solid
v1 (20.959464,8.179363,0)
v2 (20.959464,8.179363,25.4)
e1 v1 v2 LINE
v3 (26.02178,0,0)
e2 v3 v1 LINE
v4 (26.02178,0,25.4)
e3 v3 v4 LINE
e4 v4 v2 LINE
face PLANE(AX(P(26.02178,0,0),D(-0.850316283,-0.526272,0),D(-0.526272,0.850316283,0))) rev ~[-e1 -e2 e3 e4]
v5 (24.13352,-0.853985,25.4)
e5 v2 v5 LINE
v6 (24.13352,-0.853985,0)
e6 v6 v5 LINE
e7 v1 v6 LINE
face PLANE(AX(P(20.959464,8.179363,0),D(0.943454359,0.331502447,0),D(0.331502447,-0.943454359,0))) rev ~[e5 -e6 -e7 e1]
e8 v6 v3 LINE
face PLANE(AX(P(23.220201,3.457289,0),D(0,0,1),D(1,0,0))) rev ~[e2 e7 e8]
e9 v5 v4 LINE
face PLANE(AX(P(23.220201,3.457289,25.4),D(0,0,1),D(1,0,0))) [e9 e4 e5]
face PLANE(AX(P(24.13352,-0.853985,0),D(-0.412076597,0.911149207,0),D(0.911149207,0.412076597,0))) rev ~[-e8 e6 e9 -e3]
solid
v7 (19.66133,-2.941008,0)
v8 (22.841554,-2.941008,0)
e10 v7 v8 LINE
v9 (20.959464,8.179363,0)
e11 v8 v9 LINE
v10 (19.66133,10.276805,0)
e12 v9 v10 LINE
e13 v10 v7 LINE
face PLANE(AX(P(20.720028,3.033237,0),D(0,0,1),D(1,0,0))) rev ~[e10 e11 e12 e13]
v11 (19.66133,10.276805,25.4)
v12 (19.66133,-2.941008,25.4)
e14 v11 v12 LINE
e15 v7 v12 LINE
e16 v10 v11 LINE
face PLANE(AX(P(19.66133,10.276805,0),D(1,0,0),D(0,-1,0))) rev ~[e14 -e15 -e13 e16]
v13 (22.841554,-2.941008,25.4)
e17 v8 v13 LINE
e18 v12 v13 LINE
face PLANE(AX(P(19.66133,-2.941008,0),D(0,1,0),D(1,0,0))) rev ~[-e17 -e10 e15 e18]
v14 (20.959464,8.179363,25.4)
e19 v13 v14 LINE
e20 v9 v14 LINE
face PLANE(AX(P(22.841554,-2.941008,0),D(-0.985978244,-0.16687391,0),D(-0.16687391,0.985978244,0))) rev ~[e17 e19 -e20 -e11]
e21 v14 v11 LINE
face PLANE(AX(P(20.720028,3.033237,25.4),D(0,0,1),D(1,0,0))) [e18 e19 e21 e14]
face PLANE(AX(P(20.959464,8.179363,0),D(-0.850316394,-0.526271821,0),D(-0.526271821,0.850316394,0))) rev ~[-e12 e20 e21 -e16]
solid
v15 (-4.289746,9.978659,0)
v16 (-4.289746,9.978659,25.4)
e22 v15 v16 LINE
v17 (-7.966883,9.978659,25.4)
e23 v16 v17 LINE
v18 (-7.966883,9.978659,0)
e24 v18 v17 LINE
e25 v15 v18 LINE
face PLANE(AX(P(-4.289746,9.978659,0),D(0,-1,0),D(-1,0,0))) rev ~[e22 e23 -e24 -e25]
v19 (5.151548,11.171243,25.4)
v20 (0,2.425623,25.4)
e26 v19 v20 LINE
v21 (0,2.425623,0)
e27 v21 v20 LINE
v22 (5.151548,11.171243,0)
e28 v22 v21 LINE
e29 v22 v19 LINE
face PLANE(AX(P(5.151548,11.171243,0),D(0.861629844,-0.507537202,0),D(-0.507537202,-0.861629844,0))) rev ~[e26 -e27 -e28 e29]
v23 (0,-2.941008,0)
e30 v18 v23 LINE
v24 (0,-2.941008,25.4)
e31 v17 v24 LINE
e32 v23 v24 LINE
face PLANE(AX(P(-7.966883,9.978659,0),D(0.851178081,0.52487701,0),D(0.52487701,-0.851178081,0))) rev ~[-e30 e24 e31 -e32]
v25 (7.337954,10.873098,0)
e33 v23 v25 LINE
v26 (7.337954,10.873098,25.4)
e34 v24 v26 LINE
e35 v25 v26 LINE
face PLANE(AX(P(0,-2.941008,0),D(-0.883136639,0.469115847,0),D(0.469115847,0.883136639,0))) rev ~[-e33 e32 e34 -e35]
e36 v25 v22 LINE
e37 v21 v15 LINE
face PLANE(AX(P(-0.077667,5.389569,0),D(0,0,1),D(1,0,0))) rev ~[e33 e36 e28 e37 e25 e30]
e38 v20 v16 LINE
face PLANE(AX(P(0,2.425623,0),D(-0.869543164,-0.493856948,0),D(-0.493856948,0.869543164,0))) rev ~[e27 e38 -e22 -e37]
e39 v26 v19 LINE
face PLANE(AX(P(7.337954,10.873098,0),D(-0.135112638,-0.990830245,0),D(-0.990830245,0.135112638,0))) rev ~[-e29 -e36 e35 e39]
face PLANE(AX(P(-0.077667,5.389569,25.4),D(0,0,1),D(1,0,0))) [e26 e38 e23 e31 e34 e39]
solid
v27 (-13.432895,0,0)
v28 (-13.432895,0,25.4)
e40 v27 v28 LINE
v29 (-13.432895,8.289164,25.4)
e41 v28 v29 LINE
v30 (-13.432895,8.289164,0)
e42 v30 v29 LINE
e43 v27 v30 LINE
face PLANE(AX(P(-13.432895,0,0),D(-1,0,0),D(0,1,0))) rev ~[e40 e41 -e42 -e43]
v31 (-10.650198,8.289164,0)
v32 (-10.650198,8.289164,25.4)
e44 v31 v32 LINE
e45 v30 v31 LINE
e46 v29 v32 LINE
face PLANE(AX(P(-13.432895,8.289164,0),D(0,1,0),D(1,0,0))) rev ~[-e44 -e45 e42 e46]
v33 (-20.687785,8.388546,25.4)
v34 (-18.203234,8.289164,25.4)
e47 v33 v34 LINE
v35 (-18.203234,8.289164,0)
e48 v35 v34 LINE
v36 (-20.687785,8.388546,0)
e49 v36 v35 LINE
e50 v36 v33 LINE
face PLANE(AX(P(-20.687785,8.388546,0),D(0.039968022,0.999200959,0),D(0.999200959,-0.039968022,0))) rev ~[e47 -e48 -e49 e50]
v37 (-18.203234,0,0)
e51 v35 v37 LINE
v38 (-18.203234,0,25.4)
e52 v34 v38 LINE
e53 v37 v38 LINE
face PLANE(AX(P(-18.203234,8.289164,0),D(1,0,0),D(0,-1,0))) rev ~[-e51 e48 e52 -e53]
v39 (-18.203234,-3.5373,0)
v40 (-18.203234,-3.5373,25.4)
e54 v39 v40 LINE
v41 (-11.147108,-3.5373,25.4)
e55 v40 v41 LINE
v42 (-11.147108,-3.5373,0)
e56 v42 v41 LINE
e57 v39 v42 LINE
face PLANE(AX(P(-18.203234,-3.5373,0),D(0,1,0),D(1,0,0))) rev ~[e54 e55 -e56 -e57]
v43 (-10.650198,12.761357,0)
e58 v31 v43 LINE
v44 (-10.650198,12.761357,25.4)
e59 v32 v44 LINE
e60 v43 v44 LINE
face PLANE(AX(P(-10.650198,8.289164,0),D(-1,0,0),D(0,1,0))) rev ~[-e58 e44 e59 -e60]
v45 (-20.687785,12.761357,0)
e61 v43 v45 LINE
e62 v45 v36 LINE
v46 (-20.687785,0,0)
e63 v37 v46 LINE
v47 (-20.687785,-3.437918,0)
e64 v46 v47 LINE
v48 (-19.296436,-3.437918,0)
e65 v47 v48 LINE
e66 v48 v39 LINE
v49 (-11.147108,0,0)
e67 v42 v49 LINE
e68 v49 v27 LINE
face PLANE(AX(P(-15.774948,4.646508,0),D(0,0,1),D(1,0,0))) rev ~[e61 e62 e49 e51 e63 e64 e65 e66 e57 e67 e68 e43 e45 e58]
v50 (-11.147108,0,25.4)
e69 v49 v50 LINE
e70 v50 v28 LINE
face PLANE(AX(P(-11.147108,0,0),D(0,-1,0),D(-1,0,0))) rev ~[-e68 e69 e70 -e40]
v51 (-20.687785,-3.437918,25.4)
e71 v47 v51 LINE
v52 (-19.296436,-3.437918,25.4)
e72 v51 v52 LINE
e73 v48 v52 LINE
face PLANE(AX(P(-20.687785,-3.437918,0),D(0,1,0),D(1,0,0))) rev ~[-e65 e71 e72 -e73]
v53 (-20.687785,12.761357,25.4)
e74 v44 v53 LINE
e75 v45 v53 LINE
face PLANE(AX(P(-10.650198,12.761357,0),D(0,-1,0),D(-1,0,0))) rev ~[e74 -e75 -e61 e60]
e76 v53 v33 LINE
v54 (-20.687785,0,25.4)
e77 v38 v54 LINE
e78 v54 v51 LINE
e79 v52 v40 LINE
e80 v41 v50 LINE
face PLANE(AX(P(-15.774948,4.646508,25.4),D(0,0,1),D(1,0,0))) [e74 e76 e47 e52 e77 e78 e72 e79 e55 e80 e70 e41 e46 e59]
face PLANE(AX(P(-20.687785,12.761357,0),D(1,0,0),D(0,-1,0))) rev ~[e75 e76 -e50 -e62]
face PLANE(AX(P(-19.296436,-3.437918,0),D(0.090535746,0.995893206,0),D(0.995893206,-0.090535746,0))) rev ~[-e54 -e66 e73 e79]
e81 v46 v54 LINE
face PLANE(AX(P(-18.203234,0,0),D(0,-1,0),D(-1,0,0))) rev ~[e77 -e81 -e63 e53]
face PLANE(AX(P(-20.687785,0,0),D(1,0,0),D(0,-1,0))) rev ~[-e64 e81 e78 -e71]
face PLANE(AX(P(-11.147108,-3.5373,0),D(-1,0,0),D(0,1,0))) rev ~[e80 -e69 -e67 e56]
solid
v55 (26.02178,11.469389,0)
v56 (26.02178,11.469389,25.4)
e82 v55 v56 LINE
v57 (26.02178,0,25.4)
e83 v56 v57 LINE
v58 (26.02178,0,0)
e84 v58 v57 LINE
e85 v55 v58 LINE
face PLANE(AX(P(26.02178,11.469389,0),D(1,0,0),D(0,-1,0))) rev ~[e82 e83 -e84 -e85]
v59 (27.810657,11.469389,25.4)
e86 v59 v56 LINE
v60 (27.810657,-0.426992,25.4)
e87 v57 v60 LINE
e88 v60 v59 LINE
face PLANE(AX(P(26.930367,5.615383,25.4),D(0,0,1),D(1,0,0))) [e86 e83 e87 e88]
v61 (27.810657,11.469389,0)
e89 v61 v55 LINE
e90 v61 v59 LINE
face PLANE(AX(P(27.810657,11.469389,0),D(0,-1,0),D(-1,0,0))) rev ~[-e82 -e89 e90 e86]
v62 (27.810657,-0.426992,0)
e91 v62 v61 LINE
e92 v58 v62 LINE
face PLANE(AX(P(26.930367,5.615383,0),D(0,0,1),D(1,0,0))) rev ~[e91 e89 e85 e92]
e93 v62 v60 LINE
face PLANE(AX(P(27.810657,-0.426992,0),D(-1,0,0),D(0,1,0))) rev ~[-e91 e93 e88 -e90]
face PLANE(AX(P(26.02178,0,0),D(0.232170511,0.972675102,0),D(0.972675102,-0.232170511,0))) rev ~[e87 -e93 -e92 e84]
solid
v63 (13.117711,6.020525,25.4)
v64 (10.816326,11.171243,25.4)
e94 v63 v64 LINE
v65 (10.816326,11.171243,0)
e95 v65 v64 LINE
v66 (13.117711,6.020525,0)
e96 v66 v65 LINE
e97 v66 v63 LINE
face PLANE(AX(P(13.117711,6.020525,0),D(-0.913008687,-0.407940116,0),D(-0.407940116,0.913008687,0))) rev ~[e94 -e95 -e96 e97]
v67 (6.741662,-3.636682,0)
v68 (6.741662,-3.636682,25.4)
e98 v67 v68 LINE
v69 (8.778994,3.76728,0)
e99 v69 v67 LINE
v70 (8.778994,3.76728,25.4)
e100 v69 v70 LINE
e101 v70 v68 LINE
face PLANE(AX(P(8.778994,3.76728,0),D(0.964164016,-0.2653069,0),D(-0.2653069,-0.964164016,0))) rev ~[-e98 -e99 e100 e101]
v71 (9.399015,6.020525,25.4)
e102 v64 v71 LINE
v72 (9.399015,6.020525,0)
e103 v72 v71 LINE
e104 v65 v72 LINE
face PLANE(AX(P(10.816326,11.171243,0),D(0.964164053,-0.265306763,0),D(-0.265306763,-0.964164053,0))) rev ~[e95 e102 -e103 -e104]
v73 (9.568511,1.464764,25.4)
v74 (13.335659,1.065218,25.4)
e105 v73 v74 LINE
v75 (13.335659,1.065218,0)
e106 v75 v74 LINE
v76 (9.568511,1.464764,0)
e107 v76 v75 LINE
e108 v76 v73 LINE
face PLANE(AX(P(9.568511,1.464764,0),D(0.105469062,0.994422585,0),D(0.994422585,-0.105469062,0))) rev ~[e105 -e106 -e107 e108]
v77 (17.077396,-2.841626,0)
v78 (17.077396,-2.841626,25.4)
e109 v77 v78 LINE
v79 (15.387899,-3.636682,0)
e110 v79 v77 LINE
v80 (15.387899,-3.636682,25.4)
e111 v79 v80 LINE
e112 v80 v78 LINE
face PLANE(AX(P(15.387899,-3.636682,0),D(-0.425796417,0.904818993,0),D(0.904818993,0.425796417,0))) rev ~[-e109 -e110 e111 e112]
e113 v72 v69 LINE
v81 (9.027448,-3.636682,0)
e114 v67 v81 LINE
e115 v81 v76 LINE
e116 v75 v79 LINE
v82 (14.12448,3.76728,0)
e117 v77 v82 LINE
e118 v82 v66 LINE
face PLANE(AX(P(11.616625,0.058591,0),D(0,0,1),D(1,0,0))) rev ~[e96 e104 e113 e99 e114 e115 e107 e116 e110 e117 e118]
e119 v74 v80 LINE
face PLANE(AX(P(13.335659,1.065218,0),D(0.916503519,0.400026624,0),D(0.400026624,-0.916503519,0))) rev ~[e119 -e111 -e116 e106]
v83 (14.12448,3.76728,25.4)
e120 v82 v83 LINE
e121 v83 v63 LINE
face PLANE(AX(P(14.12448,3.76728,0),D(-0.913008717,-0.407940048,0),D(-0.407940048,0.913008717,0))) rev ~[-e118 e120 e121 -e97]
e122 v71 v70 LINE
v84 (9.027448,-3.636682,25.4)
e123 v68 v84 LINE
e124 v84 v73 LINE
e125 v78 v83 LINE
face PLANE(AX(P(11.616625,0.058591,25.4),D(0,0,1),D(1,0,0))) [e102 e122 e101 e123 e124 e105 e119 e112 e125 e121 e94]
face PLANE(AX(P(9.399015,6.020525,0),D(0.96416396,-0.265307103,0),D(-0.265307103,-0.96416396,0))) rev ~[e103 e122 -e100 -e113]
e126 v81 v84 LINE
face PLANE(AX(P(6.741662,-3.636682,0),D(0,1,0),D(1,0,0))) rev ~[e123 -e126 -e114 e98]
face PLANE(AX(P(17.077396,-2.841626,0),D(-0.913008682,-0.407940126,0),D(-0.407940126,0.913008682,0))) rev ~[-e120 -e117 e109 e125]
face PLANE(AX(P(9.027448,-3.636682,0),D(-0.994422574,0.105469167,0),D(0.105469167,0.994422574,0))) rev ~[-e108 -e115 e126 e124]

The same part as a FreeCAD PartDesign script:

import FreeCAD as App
import Part
import Sketcher
Q = App.Units.Quantity

doc = App.newDocument("Part")
body = doc.addObject("PartDesign::Body", "Body")
body.AllowCompound = True

# Sketch on XY plane
sketch1 = doc.addObject("Sketcher::SketchObject", "Sketch")
body.addObject(sketch1)
sketch1.AttachmentSupport = (doc.XY_Plane, [""])
sketch1.MapMode = "FlatFace"
sketch1.addGeometry(Part.LineSegment(App.Vector(-4.3, 10, 0), App.Vector(-8, 10, 0)), False)
sketch1.addGeometry(Part.LineSegment(App.Vector(-8, 10, 0), App.Vector(0, -2.9, 0)), False)
sketch1.addGeometry(Part.LineSegment(App.Vector(0, -2.9, 0), App.Vector(7.3, 10.9, 0)), False)
sketch1.addGeometry(Part.LineSegment(App.Vector(7.3, 10.9, 0), App.Vector(5.2, 11.2, 0)), False)
sketch1.addGeometry(Part.LineSegment(App.Vector(5.2, 11.2, 0), App.Vector(0, 2.4, 0)), False)
sketch1.addGeometry(Part.LineSegment(App.Vector(0, 2.4, 0), App.Vector(-4.3, 10, 0)), False)
sketch1.addGeometry(Part.LineSegment(App.Vector(8.8, 3.8, 0), App.Vector(6.7, -3.6, 0)), False)
sketch1.addGeometry(Part.LineSegment(App.Vector(6.7, -3.6, 0), App.Vector(9, -3.6, 0)), False)
sketch1.addGeometry(Part.LineSegment(App.Vector(9, -3.6, 0), App.Vector(9.6, 1.5, 0)), False)
sketch1.addGeometry(Part.LineSegment(App.Vector(9.6, 1.5, 0), App.Vector(13.3, 1.1, 0)), False)
sketch1.addGeometry(Part.LineSegment(App.Vector(13.3, 1.1, 0), App.Vector(15.4, -3.6, 0)), False)
sketch1.addGeometry(Part.LineSegment(App.Vector(15.4, -3.6, 0), App.Vector(17.1, -2.8, 0)), False)
sketch1.addGeometry(Part.LineSegment(App.Vector(17.1, -2.8, 0), App.Vector(14.1, 3.8, 0)), False)
sketch1.addGeometry(Part.LineSegment(App.Vector(14.1, 3.8, 0), App.Vector(13.1, 6, 0)), False)
sketch1.addGeometry(Part.LineSegment(App.Vector(13.1, 6, 0), App.Vector(10.8, 11.2, 0)), False)
sketch1.addGeometry(Part.LineSegment(App.Vector(10.8, 11.2, 0), App.Vector(9.4, 6, 0)), False)
sketch1.addGeometry(Part.LineSegment(App.Vector(9.4, 6, 0), App.Vector(8.8, 3.8, 0)), False)
sketch1.addGeometry(Part.LineSegment(App.Vector(-20.7, 8.4, 0), App.Vector(-18.2, 8.3, 0)), False)
sketch1.addGeometry(Part.LineSegment(App.Vector(-18.2, 8.3, 0), App.Vector(-18.2, 0, 0)), False)
sketch1.addGeometry(Part.LineSegment(App.Vector(-18.2, 0, 0), App.Vector(-20.7, 0, 0)), False)
sketch1.addGeometry(Part.LineSegment(App.Vector(-20.7, 0, 0), App.Vector(-20.7, -3.4, 0)), False)
sketch1.addGeometry(Part.LineSegment(App.Vector(-20.7, -3.4, 0), App.Vector(-19.3, -3.4, 0)), False)
sketch1.addGeometry(Part.LineSegment(App.Vector(-19.3, -3.4, 0), App.Vector(-18.2, -3.5, 0)), False)
sketch1.addGeometry(Part.LineSegment(App.Vector(-18.2, -3.5, 0), App.Vector(-11.1, -3.5, 0)), False)
sketch1.addGeometry(Part.LineSegment(App.Vector(-11.1, -3.5, 0), App.Vector(-11.1, 0, 0)), False)
sketch1.addGeometry(Part.LineSegment(App.Vector(-11.1, 0, 0), App.Vector(-13.4, 0, 0)), False)
sketch1.addGeometry(Part.LineSegment(App.Vector(-13.4, 0, 0), App.Vector(-13.4, 8.3, 0)), False)
sketch1.addGeometry(Part.LineSegment(App.Vector(-13.4, 8.3, 0), App.Vector(-10.7, 8.3, 0)), False)
sketch1.addGeometry(Part.LineSegment(App.Vector(-10.7, 8.3, 0), App.Vector(-10.7, 12.8, 0)), False)
sketch1.addGeometry(Part.LineSegment(App.Vector(-10.7, 12.8, 0), App.Vector(-20.7, 12.8, 0)), False)
sketch1.addGeometry(Part.LineSegment(App.Vector(-20.7, 12.8, 0), App.Vector(-20.7, 8.4, 0)), False)
sketch1.addGeometry(Part.LineSegment(App.Vector(26, 11.5, 0), App.Vector(26, 0, 0)), False)
sketch1.addGeometry(Part.LineSegment(App.Vector(26, 0, 0), App.Vector(27.8, -0.4, 0)), False)
sketch1.addGeometry(Part.LineSegment(App.Vector(27.8, -0.4, 0), App.Vector(27.8, 11.5, 0)), False)
sketch1.addGeometry(Part.LineSegment(App.Vector(27.8, 11.5, 0), App.Vector(26, 11.5, 0)), False)
sketch1.addGeometry(Part.LineSegment(App.Vector(21, 8.2, 0), App.Vector(19.7, 10.3, 0)), False)
sketch1.addGeometry(Part.LineSegment(App.Vector(19.7, 10.3, 0), App.Vector(19.7, -2.9, 0)), False)
sketch1.addGeometry(Part.LineSegment(App.Vector(19.7, -2.9, 0), App.Vector(22.8, -2.9, 0)), False)
sketch1.addGeometry(Part.LineSegment(App.Vector(22.8, -2.9, 0), App.Vector(21, 8.2, 0)), False)
sketch1.addGeometry(Part.LineSegment(App.Vector(26, 0, 0), App.Vector(21, 8.2, 0)), False)
sketch1.addGeometry(Part.LineSegment(App.Vector(21, 8.2, 0), App.Vector(24.1, -0.9, 0)), False)
sketch1.addGeometry(Part.LineSegment(App.Vector(24.1, -0.9, 0), App.Vector(26, 0, 0)), False)
sketch1.addConstraint(Sketcher.Constraint("Coincident", 0, 2, 1, 1))
sketch1.addConstraint(Sketcher.Constraint("Coincident", 1, 2, 2, 1))
sketch1.addConstraint(Sketcher.Constraint("Coincident", 2, 2, 3, 1))
sketch1.addConstraint(Sketcher.Constraint("Coincident", 3, 2, 4, 1))
sketch1.addConstraint(Sketcher.Constraint("Coincident", 4, 2, 5, 1))
sketch1.addConstraint(Sketcher.Constraint("Coincident", 5, 2, 0, 1))
sketch1.addConstraint(Sketcher.Constraint("Coincident", 6, 2, 7, 1))
sketch1.addConstraint(Sketcher.Constraint("Coincident", 7, 2, 8, 1))
sketch1.addConstraint(Sketcher.Constraint("Coincident", 8, 2, 9, 1))
sketch1.addConstraint(Sketcher.Constraint("Coincident", 9, 2, 10, 1))
sketch1.addConstraint(Sketcher.Constraint("Coincident", 10, 2, 11, 1))
sketch1.addConstraint(Sketcher.Constraint("Coincident", 11, 2, 12, 1))
sketch1.addConstraint(Sketcher.Constraint("Coincident", 12, 2, 13, 1))
sketch1.addConstraint(Sketcher.Constraint("Coincident", 13, 2, 14, 1))
sketch1.addConstraint(Sketcher.Constraint("Coincident", 14, 2, 15, 1))
sketch1.addConstraint(Sketcher.Constraint("Coincident", 15, 2, 16, 1))
sketch1.addConstraint(Sketcher.Constraint("Coincident", 16, 2, 6, 1))
sketch1.addConstraint(Sketcher.Constraint("Coincident", 17, 2, 18, 1))
sketch1.addConstraint(Sketcher.Constraint("Coincident", 18, 2, 19, 1))
sketch1.addConstraint(Sketcher.Constraint("Coincident", 19, 2, 20, 1))
sketch1.addConstraint(Sketcher.Constraint("Coincident", 20, 2, 21, 1))
sketch1.addConstraint(Sketcher.Constraint("Coincident", 21, 2, 22, 1))
sketch1.addConstraint(Sketcher.Constraint("Coincident", 22, 2, 23, 1))
sketch1.addConstraint(Sketcher.Constraint("Coincident", 23, 2, 24, 1))
sketch1.addConstraint(Sketcher.Constraint("Coincident", 24, 2, 25, 1))
sketch1.addConstraint(Sketcher.Constraint("Coincident", 25, 2, 26, 1))
sketch1.addConstraint(Sketcher.Constraint("Coincident", 26, 2, 27, 1))
sketch1.addConstraint(Sketcher.Constraint("Coincident", 27, 2, 28, 1))
sketch1.addConstraint(Sketcher.Constraint("Coincident", 28, 2, 29, 1))
sketch1.addConstraint(Sketcher.Constraint("Coincident", 29, 2, 30, 1))
sketch1.addConstraint(Sketcher.Constraint("Coincident", 30, 2, 17, 1))
sketch1.addConstraint(Sketcher.Constraint("Coincident", 31, 2, 32, 1))
sketch1.addConstraint(Sketcher.Constraint("Coincident", 32, 2, 33, 1))
sketch1.addConstraint(Sketcher.Constraint("Coincident", 33, 2, 34, 1))
sketch1.addConstraint(Sketcher.Constraint("Coincident", 34, 2, 31, 1))
sketch1.addConstraint(Sketcher.Constraint("Coincident", 35, 2, 36, 1))
sketch1.addConstraint(Sketcher.Constraint("Coincident", 36, 2, 37, 1))
sketch1.addConstraint(Sketcher.Constraint("Coincident", 37, 2, 38, 1))
sketch1.addConstraint(Sketcher.Constraint("Coincident", 38, 2, 35, 1))
sketch1.addConstraint(Sketcher.Constraint("Coincident", 39, 2, 40, 1))
sketch1.addConstraint(Sketcher.Constraint("Coincident", 40, 2, 41, 1))
sketch1.addConstraint(Sketcher.Constraint("Coincident", 41, 2, 39, 1))
sketch1.addConstraint(Sketcher.Constraint("Horizontal", 0))
sketch1.addConstraint(Sketcher.Constraint("Horizontal", 7))
sketch1.addConstraint(Sketcher.Constraint("Vertical", 18))
sketch1.addConstraint(Sketcher.Constraint("Horizontal", 19))
sketch1.addConstraint(Sketcher.Constraint("Vertical", 20))
sketch1.addConstraint(Sketcher.Constraint("Horizontal", 21))
sketch1.addConstraint(Sketcher.Constraint("Horizontal", 23))
sketch1.addConstraint(Sketcher.Constraint("Vertical", 24))
sketch1.addConstraint(Sketcher.Constraint("Horizontal", 25))
sketch1.addConstraint(Sketcher.Constraint("Vertical", 26))
sketch1.addConstraint(Sketcher.Constraint("Horizontal", 27))
sketch1.addConstraint(Sketcher.Constraint("Vertical", 28))
sketch1.addConstraint(Sketcher.Constraint("Horizontal", 29))
sketch1.addConstraint(Sketcher.Constraint("Vertical", 30))
sketch1.addConstraint(Sketcher.Constraint("Vertical", 31))
sketch1.addConstraint(Sketcher.Constraint("Vertical", 33))
sketch1.addConstraint(Sketcher.Constraint("Horizontal", 34))
sketch1.addConstraint(Sketcher.Constraint("Vertical", 36))
sketch1.addConstraint(Sketcher.Constraint("Horizontal", 37))
sketch1.addConstraint(Sketcher.Constraint("Coincident", 39, 2, 38, 2))
sketch1.addConstraint(Sketcher.Constraint("Coincident", 41, 2, 31, 2))
sketch1.addConstraint(Sketcher.Constraint("PointOnObject", 1, 2, -2))
sketch1.addConstraint(Sketcher.Constraint("PointOnObject", 4, 2, -2))
sketch1.addConstraint(Sketcher.Constraint("PointOnObject", 18, 2, -1))
sketch1.addConstraint(Sketcher.Constraint("PointOnObject", 24, 2, -1))
sketch1.addConstraint(Sketcher.Constraint("PointOnObject", 31, 2, -1))
sketch1.addConstraint(Sketcher.Constraint("Perpendicular", 8, 9))
sketch1.addConstraint(Sketcher.Constraint("Parallel", 12, 13))
sketch1.addConstraint(Sketcher.Constraint("Parallel", 13, 14))
sketch1.addConstraint(Sketcher.Constraint("Parallel", 6, 15))
sketch1.addConstraint(Sketcher.Constraint("Parallel", 15, 16))
sketch1.addConstraint(Sketcher.Constraint("Parallel", 35, 39))
sketch1.addConstraint(Sketcher.Constraint("Horizontal", 7, 2, 10, 2))
sketch1.addConstraint(Sketcher.Constraint("Horizontal", 3, 2, 14, 2))
sketch1.addConstraint(Sketcher.Constraint("Horizontal", 13, 2, 15, 2))
sketch1.addConstraint(Sketcher.Constraint("Horizontal", 12, 2, 16, 2))
sketch1.addConstraint(Sketcher.Constraint("Horizontal", 17, 2, 26, 2))
sketch1.addConstraint(Sketcher.Constraint("Horizontal", 1, 2, 36, 2))
sketch1.addConstraint(Sketcher.Constraint("Vertical", 18, 2, 22, 2))
sketch1.addConstraint(Sketcher.Constraint("Vertical", 20, 2, 29, 2))
sketch1.addConstraint(Sketcher.Constraint("Equal", 7, 25))
sketch1.addConstraint(Sketcher.Constraint("Angle", 40, Q("-70.640007 deg")))
sketch1.addConstraint(Sketcher.Constraint("DistanceY", 24, 1, 24, 2, 3.5373))
sketch1.addConstraint(Sketcher.Constraint("DistanceX", 11, 2, 40, 2, Q("0.2778002 in")))
sketch1.addConstraint(Sketcher.Constraint("Distance", 12, 7.238601))
sketch1.addConstraint(Sketcher.Constraint("Distance", 39, 9.619201))
sketch1.addConstraint(Sketcher.Constraint("DistanceX", 19, 2, 19, 1, 2.484551))
sketch1.addConstraint(Sketcher.Constraint("DistanceX", 21, 1, 21, 2, 1.391349))
sketch1.addConstraint(Sketcher.Constraint("DistanceY", 30, 2, 30, 1, 4.372811))
sketch1.addConstraint(Sketcher.Constraint("DistanceY", 31, 2, 31, 1, 11.469389))
sketch1.addConstraint(Sketcher.Constraint("DistanceY", 33, 1, 33, 2, 11.896381))
sketch1.addConstraint(Sketcher.Constraint("DistanceX", -1, 1, 10, 2, 15.387899))
sketch1.addConstraint(Sketcher.Constraint("DistanceX", 5, 2, 2, 2, 11.6277))
sketch1.addConstraint(Sketcher.Constraint("DistanceX", 3, 2, 7, 2, 3.8759))
sketch1.addConstraint(Sketcher.Constraint("DistanceY", 7, 2, 9, 2, 4.7019))
sketch1.addConstraint(Sketcher.Constraint("DistanceX", 8, 2, 13, 2, 3.5492))
sketch1.addConstraint(Sketcher.Constraint("DistanceX", 12, 2, 31, 2, 11.8973))
sketch1.addConstraint(Sketcher.Constraint("Distance", 1, 15.178571))
sketch1.addConstraint(Sketcher.Constraint("Distance", 3, 2.20664))
sketch1.addConstraint(Sketcher.Constraint("Distance", 4, 10.150089))
sketch1.addConstraint(Sketcher.Constraint("Distance", 5, 8.686212))
sketch1.addConstraint(Sketcher.Constraint("Distance", 6, 7.679152))
sketch1.addConstraint(Sketcher.Constraint("Distance", 8, 5.130059))
sketch1.addConstraint(Sketcher.Constraint("Distance", 10, 5.130259))
sketch1.addConstraint(Sketcher.Constraint("Distance", 11, 1.867221))
sketch1.addConstraint(Sketcher.Constraint("Distance", 15, 5.342159))
sketch1.addConstraint(Sketcher.Constraint("Distance", 22, 1.09771))
sketch1.addConstraint(Sketcher.Constraint("Distance", 32, 1.839131))
sketch1.addConstraint(Sketcher.Constraint("Distance", 35, 2.466661))
sketch1.addConstraint(Sketcher.Constraint("Distance", 40, 9.574759))
sketch1.addConstraint(Sketcher.Constraint("DistanceX", 0, 2, 0, 1, 3.677137))
sketch1.addConstraint(Sketcher.Constraint("DistanceX", 7, 1, 7, 2, 2.285786))
sketch1.addConstraint(Sketcher.Constraint("DistanceX", 23, 1, 23, 2, 7.056126))
sketch1.addConstraint(Sketcher.Constraint("DistanceX", 27, 1, 27, 2, 2.782697))
sketch1.addConstraint(Sketcher.Constraint("DistanceX", 37, 1, 37, 2, 3.180224))
sketch1.addConstraint(Sketcher.Constraint("DistanceY", 18, 2, 18, 1, 8.289164))
sketch1.addConstraint(Sketcher.Constraint("DistanceY", 28, 1, 28, 2, 4.472193))
sketch1.addConstraint(Sketcher.Constraint("DistanceY", 36, 2, 36, 1, 13.217813))
sketch1.addConstraint(Sketcher.Constraint("DistanceY", -1, 1, 0, 2, 9.978659))
sketch1.addConstraint(Sketcher.Constraint("DistanceY", 1, 2, -1, 1, 2.941008))
sketch1.addConstraint(Sketcher.Constraint("DistanceX", -1, 1, 6, 2, 6.741662))
sketch1.addConstraint(Sketcher.Constraint("DistanceX", 17, 2, 0, 2, 10.236351))
pad1 = doc.addObject("PartDesign::Pad", "Pad")
body.addObject(pad1)
pad1.Profile = sketch1
pad1.Length = Q("1 in")

doc.recompute()
